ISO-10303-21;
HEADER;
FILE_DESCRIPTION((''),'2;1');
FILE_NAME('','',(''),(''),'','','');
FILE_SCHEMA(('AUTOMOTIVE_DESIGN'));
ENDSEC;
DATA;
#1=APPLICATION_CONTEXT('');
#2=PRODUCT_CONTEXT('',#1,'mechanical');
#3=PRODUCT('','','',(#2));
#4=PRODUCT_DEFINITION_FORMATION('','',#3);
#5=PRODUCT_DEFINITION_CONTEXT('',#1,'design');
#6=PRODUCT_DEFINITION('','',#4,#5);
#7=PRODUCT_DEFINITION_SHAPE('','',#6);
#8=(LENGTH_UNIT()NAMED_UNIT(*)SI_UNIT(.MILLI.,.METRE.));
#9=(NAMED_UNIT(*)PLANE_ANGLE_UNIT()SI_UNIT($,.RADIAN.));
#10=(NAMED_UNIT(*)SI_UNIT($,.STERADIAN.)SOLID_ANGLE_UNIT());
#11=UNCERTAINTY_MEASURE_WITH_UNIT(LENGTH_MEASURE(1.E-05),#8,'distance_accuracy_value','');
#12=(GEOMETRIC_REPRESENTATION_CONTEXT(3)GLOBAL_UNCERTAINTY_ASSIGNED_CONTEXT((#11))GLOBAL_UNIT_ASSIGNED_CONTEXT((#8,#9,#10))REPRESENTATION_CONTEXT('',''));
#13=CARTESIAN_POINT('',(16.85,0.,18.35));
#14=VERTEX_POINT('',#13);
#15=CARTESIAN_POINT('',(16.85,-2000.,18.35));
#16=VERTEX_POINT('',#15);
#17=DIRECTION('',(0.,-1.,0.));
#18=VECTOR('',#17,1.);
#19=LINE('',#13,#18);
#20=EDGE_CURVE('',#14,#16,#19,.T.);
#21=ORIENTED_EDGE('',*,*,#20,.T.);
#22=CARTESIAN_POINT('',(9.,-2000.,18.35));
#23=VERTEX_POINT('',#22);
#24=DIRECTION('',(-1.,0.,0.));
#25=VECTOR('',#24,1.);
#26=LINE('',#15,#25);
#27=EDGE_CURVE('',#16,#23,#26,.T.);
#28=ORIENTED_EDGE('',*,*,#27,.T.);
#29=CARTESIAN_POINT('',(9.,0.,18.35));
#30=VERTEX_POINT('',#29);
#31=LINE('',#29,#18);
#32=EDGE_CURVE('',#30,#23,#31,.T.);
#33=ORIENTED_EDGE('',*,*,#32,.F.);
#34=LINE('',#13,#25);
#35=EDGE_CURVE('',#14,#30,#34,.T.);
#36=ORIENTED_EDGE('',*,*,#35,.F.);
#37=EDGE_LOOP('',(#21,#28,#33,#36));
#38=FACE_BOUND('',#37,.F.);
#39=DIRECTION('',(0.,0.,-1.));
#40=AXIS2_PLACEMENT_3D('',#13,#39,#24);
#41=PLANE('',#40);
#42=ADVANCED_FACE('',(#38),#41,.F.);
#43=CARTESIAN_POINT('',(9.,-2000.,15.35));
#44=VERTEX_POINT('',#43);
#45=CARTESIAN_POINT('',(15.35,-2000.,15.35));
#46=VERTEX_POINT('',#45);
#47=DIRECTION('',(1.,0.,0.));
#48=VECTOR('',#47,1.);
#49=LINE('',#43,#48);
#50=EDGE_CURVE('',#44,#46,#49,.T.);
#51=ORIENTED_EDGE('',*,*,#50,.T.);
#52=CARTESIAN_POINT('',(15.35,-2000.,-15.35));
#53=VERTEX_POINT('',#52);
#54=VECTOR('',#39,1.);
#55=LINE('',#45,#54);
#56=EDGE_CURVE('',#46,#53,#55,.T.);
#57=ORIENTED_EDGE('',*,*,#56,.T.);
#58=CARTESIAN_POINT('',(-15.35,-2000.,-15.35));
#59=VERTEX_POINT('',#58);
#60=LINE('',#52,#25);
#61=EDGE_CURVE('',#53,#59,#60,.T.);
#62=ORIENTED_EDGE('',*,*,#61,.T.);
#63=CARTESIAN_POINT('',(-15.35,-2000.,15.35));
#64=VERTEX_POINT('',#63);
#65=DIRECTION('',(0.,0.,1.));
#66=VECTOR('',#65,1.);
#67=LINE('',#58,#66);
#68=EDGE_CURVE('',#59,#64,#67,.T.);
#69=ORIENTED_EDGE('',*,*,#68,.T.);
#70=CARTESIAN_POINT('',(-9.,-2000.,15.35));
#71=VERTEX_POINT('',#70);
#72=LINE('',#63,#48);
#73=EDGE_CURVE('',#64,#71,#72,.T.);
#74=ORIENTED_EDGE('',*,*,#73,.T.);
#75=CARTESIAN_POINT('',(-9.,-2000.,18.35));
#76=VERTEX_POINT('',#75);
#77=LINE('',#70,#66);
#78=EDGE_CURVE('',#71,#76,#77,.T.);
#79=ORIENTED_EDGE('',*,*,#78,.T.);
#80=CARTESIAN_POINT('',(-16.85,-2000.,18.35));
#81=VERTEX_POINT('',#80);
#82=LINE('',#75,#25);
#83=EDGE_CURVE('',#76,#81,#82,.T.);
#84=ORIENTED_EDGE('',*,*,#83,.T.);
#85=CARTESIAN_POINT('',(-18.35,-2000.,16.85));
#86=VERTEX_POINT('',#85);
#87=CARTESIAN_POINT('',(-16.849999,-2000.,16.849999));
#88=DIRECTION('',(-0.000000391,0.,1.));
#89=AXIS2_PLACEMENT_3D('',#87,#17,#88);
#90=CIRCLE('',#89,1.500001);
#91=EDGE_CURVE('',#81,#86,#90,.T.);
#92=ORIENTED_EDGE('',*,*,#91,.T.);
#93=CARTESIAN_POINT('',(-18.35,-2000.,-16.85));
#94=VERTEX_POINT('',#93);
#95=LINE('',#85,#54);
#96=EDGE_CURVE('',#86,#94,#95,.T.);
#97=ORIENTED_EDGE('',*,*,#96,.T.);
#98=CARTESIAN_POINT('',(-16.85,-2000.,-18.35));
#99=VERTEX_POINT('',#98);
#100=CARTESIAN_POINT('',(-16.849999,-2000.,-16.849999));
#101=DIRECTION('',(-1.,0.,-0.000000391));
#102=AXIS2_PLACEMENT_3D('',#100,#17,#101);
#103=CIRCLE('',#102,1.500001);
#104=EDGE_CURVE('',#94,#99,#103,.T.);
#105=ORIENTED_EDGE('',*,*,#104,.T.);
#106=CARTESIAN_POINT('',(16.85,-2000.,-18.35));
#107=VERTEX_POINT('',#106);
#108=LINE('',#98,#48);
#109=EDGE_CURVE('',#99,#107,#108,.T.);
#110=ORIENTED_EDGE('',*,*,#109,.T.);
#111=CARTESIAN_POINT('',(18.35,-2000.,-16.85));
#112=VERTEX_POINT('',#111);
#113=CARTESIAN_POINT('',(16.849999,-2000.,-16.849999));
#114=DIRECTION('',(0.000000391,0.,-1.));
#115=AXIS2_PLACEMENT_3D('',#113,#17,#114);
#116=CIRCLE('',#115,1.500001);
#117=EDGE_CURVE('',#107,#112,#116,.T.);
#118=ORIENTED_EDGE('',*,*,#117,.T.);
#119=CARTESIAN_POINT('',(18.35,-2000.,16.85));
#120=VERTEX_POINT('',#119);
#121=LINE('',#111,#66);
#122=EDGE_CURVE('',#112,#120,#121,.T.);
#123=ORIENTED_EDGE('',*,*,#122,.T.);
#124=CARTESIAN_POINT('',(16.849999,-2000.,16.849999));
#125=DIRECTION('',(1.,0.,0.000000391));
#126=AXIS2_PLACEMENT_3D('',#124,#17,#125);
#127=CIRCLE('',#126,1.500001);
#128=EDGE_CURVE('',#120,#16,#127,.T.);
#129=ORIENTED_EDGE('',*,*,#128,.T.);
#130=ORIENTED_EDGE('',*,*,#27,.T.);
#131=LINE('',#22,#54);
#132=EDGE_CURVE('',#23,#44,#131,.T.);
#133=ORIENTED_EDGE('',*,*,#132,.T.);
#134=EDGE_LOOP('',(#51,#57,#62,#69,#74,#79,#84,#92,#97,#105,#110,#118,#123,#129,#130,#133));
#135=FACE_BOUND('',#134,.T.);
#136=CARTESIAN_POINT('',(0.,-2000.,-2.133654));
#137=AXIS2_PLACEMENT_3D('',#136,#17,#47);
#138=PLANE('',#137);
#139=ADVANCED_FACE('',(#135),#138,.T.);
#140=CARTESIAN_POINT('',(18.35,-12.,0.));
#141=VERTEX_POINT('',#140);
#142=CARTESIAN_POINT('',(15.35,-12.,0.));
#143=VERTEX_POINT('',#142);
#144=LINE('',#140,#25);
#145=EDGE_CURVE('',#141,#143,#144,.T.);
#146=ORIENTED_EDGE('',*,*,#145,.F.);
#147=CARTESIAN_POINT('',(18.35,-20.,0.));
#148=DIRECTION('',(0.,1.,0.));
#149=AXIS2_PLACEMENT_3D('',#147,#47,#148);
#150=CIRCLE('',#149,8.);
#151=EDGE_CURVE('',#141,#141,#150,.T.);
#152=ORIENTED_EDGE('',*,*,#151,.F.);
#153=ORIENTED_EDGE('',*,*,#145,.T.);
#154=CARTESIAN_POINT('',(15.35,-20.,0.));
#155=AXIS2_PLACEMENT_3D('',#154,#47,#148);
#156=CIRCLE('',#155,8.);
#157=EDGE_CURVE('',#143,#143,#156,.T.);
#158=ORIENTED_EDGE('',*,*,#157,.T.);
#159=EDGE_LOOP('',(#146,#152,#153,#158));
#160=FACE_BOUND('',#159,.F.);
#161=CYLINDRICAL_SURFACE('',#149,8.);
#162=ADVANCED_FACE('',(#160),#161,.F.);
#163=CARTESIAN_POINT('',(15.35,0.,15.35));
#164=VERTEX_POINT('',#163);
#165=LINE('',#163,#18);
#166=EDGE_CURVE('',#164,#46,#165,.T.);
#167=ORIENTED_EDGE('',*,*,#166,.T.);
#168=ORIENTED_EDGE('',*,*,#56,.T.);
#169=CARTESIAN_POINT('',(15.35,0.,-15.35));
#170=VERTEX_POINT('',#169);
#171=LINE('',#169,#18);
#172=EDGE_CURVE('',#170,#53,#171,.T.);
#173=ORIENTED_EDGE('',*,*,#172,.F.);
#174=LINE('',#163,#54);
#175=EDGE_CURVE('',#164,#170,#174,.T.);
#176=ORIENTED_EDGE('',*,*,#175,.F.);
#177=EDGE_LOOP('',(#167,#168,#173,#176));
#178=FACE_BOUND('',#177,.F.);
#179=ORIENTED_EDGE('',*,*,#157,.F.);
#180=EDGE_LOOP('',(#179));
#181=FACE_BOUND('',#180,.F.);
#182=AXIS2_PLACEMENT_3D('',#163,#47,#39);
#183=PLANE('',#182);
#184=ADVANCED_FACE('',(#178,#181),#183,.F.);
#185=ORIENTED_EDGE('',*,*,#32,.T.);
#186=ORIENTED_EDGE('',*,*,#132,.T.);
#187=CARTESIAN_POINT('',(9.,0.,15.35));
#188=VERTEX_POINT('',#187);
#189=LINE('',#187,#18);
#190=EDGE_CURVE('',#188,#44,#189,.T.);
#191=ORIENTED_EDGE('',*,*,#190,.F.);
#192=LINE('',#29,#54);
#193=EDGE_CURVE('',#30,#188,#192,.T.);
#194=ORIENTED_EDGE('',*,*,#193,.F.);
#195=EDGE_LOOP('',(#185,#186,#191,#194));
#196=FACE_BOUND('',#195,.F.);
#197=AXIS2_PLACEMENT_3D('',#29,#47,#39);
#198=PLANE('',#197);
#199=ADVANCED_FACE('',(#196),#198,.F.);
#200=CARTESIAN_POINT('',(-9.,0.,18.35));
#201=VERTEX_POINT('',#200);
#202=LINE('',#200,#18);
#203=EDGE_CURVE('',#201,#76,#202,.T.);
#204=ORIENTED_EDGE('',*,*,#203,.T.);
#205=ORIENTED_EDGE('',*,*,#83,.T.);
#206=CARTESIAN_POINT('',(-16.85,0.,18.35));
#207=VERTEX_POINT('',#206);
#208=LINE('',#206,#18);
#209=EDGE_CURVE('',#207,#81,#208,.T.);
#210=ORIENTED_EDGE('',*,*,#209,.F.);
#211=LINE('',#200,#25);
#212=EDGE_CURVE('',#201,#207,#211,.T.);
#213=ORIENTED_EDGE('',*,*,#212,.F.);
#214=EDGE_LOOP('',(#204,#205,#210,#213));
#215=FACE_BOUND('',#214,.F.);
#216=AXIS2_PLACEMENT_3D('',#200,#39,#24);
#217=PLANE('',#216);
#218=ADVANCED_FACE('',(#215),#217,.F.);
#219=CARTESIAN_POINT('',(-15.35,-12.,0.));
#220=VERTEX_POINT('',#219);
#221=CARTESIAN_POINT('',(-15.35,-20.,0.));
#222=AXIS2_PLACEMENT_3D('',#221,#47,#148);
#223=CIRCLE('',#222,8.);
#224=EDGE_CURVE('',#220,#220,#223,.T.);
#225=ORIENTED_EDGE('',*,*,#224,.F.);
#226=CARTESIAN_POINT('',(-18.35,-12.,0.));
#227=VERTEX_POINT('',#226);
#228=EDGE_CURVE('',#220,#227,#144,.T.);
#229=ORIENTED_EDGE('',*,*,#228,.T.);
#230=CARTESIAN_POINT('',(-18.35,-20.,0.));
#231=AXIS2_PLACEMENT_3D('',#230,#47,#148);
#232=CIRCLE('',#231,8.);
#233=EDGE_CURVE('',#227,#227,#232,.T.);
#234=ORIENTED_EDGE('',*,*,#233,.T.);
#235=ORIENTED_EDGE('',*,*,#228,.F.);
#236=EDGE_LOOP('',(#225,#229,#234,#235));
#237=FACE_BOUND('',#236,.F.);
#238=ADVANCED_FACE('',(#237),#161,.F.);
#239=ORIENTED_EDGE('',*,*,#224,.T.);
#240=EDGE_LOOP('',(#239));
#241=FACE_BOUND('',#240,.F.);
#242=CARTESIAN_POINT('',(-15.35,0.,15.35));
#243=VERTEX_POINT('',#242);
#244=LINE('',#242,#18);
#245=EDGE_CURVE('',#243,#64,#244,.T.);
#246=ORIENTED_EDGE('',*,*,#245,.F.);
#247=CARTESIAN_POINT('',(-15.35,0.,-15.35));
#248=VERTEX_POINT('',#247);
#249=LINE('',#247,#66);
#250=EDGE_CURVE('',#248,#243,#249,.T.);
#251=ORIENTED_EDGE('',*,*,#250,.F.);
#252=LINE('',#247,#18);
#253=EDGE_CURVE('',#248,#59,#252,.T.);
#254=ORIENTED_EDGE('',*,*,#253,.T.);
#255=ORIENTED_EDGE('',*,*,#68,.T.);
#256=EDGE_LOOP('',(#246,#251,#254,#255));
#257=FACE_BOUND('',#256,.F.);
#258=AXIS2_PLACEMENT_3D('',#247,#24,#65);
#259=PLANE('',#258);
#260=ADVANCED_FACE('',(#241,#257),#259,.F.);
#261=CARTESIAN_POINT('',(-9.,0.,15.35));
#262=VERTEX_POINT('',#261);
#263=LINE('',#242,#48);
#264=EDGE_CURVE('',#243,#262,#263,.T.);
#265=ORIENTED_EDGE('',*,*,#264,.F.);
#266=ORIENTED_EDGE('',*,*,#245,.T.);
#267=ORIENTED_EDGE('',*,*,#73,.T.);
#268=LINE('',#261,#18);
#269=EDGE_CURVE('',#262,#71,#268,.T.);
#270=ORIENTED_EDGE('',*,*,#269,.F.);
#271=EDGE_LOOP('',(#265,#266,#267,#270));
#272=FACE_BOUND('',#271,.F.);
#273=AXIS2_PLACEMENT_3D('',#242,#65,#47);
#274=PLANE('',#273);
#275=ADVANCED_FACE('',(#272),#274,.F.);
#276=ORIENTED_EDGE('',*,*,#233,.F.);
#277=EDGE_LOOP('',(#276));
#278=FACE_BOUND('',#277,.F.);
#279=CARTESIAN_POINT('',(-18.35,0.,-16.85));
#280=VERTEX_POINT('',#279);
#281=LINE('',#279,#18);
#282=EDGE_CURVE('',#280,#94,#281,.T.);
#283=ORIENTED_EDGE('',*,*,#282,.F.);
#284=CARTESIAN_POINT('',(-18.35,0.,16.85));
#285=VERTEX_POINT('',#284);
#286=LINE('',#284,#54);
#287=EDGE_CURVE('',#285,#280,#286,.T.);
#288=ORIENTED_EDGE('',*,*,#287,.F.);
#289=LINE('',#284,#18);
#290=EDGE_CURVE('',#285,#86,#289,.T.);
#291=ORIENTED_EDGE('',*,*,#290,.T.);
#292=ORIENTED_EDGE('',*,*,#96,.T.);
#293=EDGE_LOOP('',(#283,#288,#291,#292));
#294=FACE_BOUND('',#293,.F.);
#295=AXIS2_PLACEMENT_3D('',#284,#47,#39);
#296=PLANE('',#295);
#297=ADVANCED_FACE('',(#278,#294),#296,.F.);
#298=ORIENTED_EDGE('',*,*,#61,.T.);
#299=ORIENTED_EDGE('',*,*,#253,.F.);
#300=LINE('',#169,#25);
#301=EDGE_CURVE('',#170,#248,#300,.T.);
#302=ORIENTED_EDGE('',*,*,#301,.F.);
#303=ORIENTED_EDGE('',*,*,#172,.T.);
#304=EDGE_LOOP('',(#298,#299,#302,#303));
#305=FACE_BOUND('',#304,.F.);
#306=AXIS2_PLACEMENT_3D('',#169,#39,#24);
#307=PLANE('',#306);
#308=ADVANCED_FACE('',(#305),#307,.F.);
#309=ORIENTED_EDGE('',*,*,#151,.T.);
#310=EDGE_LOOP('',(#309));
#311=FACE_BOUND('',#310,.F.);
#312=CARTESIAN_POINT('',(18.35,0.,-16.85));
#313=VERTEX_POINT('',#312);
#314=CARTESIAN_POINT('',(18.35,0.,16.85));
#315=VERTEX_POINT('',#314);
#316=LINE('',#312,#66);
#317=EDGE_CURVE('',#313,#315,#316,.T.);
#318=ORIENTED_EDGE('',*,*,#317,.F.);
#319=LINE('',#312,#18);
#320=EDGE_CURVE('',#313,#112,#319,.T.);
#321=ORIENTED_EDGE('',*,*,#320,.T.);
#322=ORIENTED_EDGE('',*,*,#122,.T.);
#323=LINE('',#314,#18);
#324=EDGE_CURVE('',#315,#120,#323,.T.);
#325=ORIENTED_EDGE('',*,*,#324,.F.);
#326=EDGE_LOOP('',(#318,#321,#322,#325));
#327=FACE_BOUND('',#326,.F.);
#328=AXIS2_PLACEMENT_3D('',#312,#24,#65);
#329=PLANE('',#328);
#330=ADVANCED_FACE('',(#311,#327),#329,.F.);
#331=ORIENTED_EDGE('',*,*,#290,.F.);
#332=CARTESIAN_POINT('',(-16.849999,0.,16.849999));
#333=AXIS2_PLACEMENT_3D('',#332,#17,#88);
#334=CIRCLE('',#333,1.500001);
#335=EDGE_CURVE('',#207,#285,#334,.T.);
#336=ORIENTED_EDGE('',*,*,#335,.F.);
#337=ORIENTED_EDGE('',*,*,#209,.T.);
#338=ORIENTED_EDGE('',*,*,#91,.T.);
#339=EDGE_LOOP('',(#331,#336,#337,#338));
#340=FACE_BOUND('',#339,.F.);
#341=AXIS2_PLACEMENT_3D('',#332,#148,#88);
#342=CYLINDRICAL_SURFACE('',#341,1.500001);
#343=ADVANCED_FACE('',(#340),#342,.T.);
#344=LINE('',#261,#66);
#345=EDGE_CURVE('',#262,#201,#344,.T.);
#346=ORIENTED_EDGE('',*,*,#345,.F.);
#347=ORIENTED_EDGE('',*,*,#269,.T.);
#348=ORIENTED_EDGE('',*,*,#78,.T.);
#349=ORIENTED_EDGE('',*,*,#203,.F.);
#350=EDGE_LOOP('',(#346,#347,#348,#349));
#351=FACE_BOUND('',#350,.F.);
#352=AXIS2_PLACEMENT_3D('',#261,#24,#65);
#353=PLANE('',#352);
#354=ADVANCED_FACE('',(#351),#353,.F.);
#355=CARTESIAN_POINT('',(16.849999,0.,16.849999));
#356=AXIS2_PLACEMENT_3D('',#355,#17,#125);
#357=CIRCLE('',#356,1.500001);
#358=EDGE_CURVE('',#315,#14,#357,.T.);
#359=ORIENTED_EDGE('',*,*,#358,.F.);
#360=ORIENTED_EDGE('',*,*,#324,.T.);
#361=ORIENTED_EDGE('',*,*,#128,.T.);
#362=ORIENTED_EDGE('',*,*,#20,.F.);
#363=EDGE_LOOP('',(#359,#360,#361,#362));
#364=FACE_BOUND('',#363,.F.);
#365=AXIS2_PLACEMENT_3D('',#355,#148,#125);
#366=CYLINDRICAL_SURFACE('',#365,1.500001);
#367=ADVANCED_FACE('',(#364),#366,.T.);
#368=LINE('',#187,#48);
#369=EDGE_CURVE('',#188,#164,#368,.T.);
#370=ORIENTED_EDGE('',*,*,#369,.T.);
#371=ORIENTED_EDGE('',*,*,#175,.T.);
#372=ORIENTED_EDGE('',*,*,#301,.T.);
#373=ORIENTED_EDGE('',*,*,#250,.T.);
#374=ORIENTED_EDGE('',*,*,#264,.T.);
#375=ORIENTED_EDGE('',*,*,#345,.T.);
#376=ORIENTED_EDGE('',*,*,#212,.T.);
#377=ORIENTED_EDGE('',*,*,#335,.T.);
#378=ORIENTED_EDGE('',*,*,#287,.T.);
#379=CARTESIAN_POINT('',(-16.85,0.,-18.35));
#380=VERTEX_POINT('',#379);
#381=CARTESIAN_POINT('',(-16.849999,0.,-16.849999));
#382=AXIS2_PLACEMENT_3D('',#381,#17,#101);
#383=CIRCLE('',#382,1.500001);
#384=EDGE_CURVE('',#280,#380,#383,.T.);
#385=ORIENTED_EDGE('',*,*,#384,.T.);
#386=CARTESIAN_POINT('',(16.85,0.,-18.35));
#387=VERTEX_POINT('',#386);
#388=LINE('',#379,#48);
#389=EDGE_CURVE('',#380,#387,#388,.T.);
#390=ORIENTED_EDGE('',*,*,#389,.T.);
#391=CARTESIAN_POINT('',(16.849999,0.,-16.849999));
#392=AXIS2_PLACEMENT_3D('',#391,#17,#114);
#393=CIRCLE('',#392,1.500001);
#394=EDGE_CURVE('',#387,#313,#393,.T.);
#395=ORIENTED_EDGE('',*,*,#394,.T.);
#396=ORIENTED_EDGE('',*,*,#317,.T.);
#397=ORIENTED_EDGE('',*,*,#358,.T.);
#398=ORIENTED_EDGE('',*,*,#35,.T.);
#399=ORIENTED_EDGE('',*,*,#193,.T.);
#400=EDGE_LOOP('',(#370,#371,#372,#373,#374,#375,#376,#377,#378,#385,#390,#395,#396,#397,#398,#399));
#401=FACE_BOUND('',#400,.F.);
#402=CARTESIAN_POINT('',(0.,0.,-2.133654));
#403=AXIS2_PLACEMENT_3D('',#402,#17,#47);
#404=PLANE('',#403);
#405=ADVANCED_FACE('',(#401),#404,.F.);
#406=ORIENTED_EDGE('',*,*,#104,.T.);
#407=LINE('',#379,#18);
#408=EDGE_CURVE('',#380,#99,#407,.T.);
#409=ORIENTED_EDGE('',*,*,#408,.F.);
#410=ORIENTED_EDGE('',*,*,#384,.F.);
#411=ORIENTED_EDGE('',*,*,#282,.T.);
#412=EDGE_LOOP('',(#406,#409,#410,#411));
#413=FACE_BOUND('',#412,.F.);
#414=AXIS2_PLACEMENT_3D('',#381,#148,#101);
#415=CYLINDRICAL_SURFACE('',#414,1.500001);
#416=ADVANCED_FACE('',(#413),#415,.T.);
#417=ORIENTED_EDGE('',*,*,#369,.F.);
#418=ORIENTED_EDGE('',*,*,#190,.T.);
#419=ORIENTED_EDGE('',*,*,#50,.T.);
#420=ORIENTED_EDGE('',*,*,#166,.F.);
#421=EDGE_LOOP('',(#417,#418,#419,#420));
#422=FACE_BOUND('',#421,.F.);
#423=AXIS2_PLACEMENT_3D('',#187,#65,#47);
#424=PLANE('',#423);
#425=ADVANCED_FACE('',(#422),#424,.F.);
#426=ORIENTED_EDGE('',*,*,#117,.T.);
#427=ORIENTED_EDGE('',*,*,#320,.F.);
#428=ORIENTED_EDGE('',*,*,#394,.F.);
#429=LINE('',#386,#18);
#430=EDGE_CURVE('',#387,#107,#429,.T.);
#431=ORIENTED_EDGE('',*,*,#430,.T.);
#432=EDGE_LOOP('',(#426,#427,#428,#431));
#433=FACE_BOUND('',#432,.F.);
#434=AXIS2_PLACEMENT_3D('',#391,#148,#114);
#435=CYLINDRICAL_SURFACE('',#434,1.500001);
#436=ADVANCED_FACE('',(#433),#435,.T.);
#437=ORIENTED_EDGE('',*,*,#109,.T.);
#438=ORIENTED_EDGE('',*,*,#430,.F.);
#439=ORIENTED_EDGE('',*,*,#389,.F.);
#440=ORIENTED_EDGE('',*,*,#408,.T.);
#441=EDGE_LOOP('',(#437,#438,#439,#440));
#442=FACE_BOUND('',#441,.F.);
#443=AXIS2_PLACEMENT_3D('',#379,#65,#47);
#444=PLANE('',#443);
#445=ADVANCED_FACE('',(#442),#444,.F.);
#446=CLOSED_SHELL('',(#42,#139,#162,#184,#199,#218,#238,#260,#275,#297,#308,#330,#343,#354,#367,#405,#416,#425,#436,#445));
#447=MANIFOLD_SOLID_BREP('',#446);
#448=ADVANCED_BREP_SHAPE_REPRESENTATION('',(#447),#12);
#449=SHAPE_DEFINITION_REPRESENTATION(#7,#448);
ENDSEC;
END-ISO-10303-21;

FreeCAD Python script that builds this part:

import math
import FreeCAD as App
import Part
import Sketcher
from FreeCAD import Vector
Q = App.Units.Quantity

doc = App.newDocument("Part")
body = doc.addObject("PartDesign::Body", "Body")

sketch1 = doc.addObject("Sketcher::SketchObject", "Sketch")
body.addObject(sketch1)
sketch1.AttachmentSupport = (doc.XZ_Plane, [""])
sketch1.MapMode = "FlatFace"
sketch1.addGeometry(Part.LineSegment(Vector(15.3, 15.3, 0), Vector(15.3, -15.3, 0)), False)
sketch1.addGeometry(Part.LineSegment(Vector(15.3, -15.3, 0), Vector(-15.3, -15.3, 0)), False)
sketch1.addGeometry(Part.LineSegment(Vector(-15.3, -15.3, 0), Vector(-15.3, 15.3, 0)), False)
sketch1.addGeometry(Part.LineSegment(Vector(-15.3, 15.3, 0), Vector(-9, 15.3, 0)), False)
sketch1.addGeometry(Part.LineSegment(Vector(-9, 15.3, 0), Vector(-9, 18.4, 0)), False)
sketch1.addGeometry(Part.LineSegment(Vector(-9, 18.4, 0), Vector(-16.9, 18.4, 0)), False)
sketch1.addGeometry(Part.ArcOfCircle(Part.Circle(Vector(-16.8, 16.8, 0), Vector(0, 0, 1), 1.5), math.radians(90), math.radians(180)), False)
sketch1.addGeometry(Part.LineSegment(Vector(-18.4, 16.9, 0), Vector(-18.4, -16.9, 0)), False)
sketch1.addGeometry(Part.ArcOfCircle(Part.Circle(Vector(-16.8, -16.8, 0), Vector(0, 0, 1), 1.5), math.radians(-180), math.radians(-90)), False)
sketch1.addGeometry(Part.LineSegment(Vector(-16.9, -18.4, 0), Vector(16.9, -18.4, 0)), False)
sketch1.addGeometry(Part.ArcOfCircle(Part.Circle(Vector(16.8, -16.8, 0), Vector(0, 0, 1), 1.5), math.radians(-90), math.radians(0)), False)
sketch1.addGeometry(Part.LineSegment(Vector(18.4, -16.9, 0), Vector(18.4, 16.9, 0)), False)
sketch1.addGeometry(Part.ArcOfCircle(Part.Circle(Vector(16.8, 16.8, 0), Vector(0, 0, 1), 1.5), math.radians(0), math.radians(90)), False)
sketch1.addGeometry(Part.LineSegment(Vector(16.9, 18.4, 0), Vector(9, 18.4, 0)), False)
sketch1.addGeometry(Part.LineSegment(Vector(9, 18.4, 0), Vector(9, 15.3, 0)), False)
sketch1.addGeometry(Part.LineSegment(Vector(9, 15.3, 0), Vector(15.3, 15.3, 0)), False)
sketch1.addConstraint(Sketcher.Constraint("Coincident", 0, 2, 1, 1))
sketch1.addConstraint(Sketcher.Constraint("Coincident", 1, 2, 2, 1))
sketch1.addConstraint(Sketcher.Constraint("Coincident", 2, 2, 3, 1))
sketch1.addConstraint(Sketcher.Constraint("Coincident", 3, 2, 4, 1))
sketch1.addConstraint(Sketcher.Constraint("Coincident", 4, 2, 5, 1))
sketch1.addConstraint(Sketcher.Constraint("Tangent", 5, 2, 6, 1))
sketch1.addConstraint(Sketcher.Constraint("Tangent", 6, 2, 7, 1))
sketch1.addConstraint(Sketcher.Constraint("Tangent", 7, 2, 8, 1))
sketch1.addConstraint(Sketcher.Constraint("Tangent", 8, 2, 9, 1))
sketch1.addConstraint(Sketcher.Constraint("Tangent", 9, 2, 10, 1))
sketch1.addConstraint(Sketcher.Constraint("Tangent", 10, 2, 11, 1))
sketch1.addConstraint(Sketcher.Constraint("Tangent", 11, 2, 12, 1))
sketch1.addConstraint(Sketcher.Constraint("Tangent", 12, 2, 13, 1))
sketch1.addConstraint(Sketcher.Constraint("Coincident", 13, 2, 14, 1))
sketch1.addConstraint(Sketcher.Constraint("Coincident", 14, 2, 15, 1))
sketch1.addConstraint(Sketcher.Constraint("Coincident", 15, 2, 0, 1))
sketch1.addConstraint(Sketcher.Constraint("Vertical", 0))
sketch1.addConstraint(Sketcher.Constraint("Horizontal", 1))
sketch1.addConstraint(Sketcher.Constraint("Vertical", 2))
sketch1.addConstraint(Sketcher.Constraint("Horizontal", 3))
sketch1.addConstraint(Sketcher.Constraint("Vertical", 4))
sketch1.addConstraint(Sketcher.Constraint("Horizontal", 5))
sketch1.addConstraint(Sketcher.Constraint("Vertical", 7))
sketch1.addConstraint(Sketcher.Constraint("Horizontal", 9))
sketch1.addConstraint(Sketcher.Constraint("Vertical", 11))
sketch1.addConstraint(Sketcher.Constraint("Horizontal", 13))
sketch1.addConstraint(Sketcher.Constraint("Vertical", 14))
sketch1.addConstraint(Sketcher.Constraint("Horizontal", 15))
sketch1.addConstraint(Sketcher.Constraint("Equal", 6, 8))
sketch1.addConstraint(Sketcher.Constraint("Equal", 8, 10))
sketch1.addConstraint(Sketcher.Constraint("Equal", 10, 12))
sketch1.addConstraint(Sketcher.Constraint("Symmetric", 6, 3, 10, 3, -1, 1))
sketch1.addConstraint(Sketcher.Constraint("Symmetric", 0, 2, 2, 2, -1, 1))
sketch1.addConstraint(Sketcher.Constraint("Symmetric", 4, 2, 13, 2, -2))
sketch1.addConstraint(Sketcher.Constraint("Horizontal", 3, 2, 14, 2))
sketch1.addConstraint(Sketcher.Constraint("Equal", 1, 0))
sketch1.addConstraint(Sketcher.Constraint("Equal", 9, 7))
sketch1.addConstraint(Sketcher.Constraint("Radius", 6, Q("1.500001 mm")))
sketch1.addConstraint(Sketcher.Constraint("DistanceY", 4, 1, 4, 2, Q("3 mm")))
sketch1.addConstraint(Sketcher.Constraint("DistanceX", 1, 2, 1, 1, Q("30.7 mm")))
sketch1.addConstraint(Sketcher.Constraint("DistanceX", 3, 2, -1, 1, Q("9 mm")))
pad1 = doc.addObject("PartDesign::Pad", "Pad")
body.addObject(pad1)
pad1.Profile = sketch1
pad1.Length = 2000

sketch2 = doc.addObject("Sketcher::SketchObject", "Sketch001")
body.addObject(sketch2)
sketch2.AttachmentSupport = (doc.YZ_Plane, [""])
sketch2.MapMode = "FlatFace"
sketch2.AttachmentOffset = App.Placement(Vector(0, 0, 18.35), App.Rotation())
sketch2.addGeometry(Part.Circle(Vector(-20, 0, 0), Vector(0, 0, 1), 8), False)
sketch2.addConstraint(Sketcher.Constraint("PointOnObject", 0, 3, -1))
sketch2.addConstraint(Sketcher.Constraint("Diameter", 0, Q("16 mm")))
sketch2.addConstraint(Sketcher.Constraint("DistanceX", 0, 3, -1, 1, Q("20 mm")))
pocket1 = doc.addObject("PartDesign::Pocket", "Pocket")
body.addObject(pocket1)
pocket1.Profile = sketch2
pocket1.Type = "ThroughAll"

doc.recompute()
